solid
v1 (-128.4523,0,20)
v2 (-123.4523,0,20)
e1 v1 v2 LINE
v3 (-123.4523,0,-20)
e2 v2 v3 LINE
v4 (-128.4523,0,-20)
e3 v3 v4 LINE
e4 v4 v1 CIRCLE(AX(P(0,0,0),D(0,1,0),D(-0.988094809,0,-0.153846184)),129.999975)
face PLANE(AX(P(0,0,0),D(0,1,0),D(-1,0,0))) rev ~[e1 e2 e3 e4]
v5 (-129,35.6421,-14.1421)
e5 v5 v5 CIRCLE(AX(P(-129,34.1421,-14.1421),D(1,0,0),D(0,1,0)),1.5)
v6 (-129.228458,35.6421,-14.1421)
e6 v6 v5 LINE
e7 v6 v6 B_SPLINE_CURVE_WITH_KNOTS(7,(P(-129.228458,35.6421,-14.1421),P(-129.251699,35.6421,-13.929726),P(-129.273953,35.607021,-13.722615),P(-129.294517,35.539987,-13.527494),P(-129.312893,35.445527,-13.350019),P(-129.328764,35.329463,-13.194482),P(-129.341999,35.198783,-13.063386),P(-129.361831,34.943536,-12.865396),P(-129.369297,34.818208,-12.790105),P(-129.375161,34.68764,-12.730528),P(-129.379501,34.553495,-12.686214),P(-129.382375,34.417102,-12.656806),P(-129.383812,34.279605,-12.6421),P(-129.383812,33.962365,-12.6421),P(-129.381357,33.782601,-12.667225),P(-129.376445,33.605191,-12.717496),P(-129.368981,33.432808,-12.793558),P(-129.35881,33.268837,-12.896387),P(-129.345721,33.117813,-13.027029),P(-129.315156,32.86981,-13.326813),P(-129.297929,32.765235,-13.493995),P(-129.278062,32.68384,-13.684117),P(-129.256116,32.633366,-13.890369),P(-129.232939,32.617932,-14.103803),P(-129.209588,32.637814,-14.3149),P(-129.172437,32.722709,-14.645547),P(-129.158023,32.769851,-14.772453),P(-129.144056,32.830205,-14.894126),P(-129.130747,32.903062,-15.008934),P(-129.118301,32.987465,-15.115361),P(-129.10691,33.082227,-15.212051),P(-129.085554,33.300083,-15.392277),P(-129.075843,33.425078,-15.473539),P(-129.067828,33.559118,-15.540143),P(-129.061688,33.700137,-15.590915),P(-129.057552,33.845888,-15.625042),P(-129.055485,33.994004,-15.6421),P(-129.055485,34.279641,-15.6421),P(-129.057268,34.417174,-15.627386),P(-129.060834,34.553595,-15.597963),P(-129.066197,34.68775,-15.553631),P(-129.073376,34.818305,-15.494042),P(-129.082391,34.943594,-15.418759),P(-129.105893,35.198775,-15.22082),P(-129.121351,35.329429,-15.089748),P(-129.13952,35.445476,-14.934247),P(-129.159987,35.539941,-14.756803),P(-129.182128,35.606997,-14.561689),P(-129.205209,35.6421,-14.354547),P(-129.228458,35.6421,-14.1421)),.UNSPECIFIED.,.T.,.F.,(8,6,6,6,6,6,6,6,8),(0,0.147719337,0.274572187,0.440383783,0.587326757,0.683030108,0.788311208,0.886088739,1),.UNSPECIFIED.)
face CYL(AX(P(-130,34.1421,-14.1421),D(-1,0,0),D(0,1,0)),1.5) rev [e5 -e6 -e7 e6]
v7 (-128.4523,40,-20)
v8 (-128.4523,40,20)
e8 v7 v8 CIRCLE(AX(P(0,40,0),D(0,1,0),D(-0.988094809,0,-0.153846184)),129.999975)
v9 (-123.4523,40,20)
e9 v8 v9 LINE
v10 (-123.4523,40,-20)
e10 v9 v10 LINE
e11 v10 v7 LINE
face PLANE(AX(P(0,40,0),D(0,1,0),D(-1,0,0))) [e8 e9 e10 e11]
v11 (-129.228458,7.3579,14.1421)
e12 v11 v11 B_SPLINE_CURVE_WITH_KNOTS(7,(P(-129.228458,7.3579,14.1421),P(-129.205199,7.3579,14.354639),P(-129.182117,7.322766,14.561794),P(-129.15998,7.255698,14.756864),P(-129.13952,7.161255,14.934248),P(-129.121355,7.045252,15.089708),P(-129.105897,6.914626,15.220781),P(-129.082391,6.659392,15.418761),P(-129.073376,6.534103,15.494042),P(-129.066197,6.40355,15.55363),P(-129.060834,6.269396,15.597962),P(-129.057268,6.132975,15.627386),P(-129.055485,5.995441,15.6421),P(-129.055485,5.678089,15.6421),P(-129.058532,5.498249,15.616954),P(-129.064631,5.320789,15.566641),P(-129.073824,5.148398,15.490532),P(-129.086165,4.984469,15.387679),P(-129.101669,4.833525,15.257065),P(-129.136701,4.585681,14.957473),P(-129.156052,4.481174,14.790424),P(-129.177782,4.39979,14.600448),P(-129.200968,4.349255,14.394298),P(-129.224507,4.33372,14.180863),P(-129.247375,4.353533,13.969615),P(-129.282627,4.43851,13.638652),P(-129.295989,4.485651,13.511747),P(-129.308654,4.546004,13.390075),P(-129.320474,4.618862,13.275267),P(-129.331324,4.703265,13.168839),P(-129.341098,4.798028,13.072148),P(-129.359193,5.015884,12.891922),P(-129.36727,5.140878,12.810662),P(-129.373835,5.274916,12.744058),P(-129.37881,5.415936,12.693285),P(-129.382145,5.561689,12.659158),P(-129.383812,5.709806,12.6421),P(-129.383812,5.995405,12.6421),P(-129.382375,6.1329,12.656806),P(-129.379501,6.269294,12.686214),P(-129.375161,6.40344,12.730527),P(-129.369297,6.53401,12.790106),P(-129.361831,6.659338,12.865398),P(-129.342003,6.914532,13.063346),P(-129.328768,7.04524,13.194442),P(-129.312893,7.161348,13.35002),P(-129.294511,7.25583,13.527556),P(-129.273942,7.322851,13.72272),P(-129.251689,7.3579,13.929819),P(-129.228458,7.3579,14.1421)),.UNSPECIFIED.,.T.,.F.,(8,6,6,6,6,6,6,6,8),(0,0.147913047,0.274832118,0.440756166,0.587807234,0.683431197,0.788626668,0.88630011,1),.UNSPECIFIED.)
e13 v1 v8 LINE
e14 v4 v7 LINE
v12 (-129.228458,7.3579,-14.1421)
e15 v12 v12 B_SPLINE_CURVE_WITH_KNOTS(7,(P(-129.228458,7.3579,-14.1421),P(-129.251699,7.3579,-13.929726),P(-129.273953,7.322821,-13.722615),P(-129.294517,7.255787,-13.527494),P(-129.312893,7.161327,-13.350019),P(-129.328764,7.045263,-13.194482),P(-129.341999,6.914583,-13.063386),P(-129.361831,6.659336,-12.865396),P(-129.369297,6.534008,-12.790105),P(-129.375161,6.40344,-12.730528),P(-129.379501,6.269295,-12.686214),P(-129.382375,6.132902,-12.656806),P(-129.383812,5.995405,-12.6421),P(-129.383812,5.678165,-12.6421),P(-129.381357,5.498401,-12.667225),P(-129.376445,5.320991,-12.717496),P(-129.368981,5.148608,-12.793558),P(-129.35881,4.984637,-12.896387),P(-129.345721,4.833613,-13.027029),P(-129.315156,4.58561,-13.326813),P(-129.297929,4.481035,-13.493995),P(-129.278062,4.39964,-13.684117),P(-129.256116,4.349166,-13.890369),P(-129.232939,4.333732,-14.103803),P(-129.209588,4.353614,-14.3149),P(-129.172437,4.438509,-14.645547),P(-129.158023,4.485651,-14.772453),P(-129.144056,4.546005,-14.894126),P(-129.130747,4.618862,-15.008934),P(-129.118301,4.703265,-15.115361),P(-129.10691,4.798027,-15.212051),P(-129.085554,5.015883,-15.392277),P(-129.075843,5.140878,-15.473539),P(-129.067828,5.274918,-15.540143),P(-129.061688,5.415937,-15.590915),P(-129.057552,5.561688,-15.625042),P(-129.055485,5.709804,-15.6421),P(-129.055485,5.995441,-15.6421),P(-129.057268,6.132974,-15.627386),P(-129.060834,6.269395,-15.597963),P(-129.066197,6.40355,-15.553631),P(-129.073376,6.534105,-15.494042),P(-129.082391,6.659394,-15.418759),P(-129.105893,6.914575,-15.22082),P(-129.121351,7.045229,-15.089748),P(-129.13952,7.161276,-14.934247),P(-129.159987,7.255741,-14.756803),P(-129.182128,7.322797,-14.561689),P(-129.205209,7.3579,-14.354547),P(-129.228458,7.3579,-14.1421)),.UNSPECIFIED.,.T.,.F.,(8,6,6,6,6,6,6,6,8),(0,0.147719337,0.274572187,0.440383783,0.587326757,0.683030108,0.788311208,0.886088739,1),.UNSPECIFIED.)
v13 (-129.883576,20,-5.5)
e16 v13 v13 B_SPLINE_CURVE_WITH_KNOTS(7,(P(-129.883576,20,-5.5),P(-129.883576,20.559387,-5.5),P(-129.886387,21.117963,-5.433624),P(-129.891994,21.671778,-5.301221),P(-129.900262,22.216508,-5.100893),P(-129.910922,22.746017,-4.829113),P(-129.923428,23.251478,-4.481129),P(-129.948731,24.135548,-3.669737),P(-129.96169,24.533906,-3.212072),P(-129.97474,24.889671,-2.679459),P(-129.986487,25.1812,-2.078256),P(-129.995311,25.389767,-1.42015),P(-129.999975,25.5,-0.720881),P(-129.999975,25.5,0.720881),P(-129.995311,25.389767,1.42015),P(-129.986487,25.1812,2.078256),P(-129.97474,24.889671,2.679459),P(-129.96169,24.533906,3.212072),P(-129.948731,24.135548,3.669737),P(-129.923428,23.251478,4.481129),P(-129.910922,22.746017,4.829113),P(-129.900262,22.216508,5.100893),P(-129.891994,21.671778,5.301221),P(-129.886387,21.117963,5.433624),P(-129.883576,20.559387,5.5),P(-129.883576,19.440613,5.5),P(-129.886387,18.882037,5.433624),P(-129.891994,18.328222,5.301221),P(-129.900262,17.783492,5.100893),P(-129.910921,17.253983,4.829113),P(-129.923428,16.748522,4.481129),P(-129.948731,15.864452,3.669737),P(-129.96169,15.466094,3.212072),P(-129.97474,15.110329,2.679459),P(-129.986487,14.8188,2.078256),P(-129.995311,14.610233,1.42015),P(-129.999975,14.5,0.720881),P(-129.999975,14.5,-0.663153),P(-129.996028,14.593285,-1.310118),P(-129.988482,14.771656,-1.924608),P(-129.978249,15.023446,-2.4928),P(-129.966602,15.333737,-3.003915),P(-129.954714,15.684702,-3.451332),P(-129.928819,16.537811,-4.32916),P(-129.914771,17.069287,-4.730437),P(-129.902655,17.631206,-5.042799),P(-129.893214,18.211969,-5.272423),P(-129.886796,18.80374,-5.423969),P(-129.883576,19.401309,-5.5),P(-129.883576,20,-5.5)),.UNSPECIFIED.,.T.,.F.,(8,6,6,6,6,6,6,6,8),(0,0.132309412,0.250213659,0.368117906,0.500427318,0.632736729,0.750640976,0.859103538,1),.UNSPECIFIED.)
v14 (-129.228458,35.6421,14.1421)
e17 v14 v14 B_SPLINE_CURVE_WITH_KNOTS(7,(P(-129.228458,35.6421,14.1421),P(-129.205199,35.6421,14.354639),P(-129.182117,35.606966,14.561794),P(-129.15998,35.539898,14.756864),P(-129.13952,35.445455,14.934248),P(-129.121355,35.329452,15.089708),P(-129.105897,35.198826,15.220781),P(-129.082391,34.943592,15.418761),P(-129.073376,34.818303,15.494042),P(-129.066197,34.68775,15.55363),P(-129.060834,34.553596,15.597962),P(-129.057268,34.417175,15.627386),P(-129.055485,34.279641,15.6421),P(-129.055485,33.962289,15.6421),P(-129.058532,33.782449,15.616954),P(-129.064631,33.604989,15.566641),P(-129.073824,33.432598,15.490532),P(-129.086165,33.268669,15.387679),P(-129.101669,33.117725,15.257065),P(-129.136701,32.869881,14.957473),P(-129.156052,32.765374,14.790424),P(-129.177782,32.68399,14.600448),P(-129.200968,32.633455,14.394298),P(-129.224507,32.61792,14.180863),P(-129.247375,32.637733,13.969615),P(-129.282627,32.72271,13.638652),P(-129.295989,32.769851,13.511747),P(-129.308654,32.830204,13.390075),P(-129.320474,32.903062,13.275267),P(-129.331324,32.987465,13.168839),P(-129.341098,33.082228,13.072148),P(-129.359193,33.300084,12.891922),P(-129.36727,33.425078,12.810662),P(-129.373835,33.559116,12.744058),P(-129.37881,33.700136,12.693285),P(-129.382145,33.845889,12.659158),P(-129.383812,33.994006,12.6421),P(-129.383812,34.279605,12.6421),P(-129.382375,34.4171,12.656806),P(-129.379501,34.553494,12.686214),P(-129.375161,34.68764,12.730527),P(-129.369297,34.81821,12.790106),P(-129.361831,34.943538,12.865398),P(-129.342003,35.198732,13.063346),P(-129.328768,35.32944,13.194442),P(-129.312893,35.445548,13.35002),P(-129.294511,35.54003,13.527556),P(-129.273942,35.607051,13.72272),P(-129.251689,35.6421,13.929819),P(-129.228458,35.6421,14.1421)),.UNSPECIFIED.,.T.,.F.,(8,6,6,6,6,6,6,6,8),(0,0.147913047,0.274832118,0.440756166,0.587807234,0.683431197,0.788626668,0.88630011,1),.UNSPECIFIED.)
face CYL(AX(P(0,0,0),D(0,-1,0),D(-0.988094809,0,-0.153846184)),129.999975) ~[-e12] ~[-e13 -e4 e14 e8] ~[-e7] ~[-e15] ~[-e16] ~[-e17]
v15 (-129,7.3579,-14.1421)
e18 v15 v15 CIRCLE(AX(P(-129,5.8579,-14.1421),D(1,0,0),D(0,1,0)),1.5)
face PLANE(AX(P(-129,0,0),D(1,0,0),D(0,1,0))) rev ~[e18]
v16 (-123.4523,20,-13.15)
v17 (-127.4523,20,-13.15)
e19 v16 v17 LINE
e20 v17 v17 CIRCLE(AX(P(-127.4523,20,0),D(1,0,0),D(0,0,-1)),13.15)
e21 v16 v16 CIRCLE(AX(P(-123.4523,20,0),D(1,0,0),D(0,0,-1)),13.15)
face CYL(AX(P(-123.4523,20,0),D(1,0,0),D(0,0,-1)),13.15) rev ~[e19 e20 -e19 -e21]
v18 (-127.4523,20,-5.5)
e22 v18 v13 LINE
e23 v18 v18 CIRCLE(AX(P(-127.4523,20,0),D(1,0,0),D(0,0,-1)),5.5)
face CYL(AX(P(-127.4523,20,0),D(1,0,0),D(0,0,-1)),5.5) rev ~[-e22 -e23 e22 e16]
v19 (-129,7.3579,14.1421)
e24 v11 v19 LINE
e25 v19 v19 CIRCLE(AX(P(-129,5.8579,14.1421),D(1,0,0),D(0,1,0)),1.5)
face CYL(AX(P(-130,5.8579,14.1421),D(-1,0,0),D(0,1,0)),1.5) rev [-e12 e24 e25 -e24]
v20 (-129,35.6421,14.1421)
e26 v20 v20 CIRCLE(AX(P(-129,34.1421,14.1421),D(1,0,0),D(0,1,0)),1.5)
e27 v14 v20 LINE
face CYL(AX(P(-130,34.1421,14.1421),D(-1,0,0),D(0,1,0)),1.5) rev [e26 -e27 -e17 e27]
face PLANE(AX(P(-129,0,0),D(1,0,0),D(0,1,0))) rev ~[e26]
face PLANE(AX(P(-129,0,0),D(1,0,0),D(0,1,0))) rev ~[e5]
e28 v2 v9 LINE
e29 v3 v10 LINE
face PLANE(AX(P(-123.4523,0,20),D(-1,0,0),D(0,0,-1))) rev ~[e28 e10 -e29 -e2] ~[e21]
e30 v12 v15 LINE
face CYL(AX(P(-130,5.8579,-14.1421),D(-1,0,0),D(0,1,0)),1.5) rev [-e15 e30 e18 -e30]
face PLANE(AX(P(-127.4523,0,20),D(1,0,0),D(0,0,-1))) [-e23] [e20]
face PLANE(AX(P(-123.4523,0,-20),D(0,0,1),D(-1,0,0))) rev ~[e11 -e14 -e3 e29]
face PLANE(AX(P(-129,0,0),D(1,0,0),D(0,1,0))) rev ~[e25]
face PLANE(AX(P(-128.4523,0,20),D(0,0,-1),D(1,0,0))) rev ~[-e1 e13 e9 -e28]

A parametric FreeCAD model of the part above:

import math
import FreeCAD as App
import Part
import Sketcher

doc = App.newDocument("Part")
body = doc.addObject("PartDesign::Body", "Body")

# Sketch on XZ plane
sketch1 = body.newObject("Sketcher::SketchObject", "Sketch")
sketch1.AttachmentSupport = (doc.getObject("XZ_Plane"), [""])
sketch1.MapMode = "FlatFace"
sketch1.addGeometry([
    Part.LineSegment(App.Vector(-123, -20, 0), App.Vector(-128, -20, 0)),
    Part.ArcOfCircle(Part.Circle(App.Vector(0, 0, 0), App.Vector(0, 0, 1), 130), math.radians(171.15), math.radians(188.85)),
    Part.LineSegment(App.Vector(-128, 20, 0), App.Vector(-123, 20, 0)),
    Part.LineSegment(App.Vector(-123, 20, 0), App.Vector(-123, -20, 0)),
], False)
sketch1.addConstraint([
    Sketcher.Constraint("Coincident", 0, 2, 1, 2),
    Sketcher.Constraint("Coincident", 1, 1, 2, 1),
    Sketcher.Constraint("Coincident", 2, 2, 3, 1),
    Sketcher.Constraint("Coincident", 3, 2, 0, 1),
    Sketcher.Constraint("Horizontal", 0),
    Sketcher.Constraint("Horizontal", 2),
    Sketcher.Constraint("Vertical", 3),
    Sketcher.Constraint("Coincident", 1, 3, -1, 1),
    Sketcher.Constraint("Vertical", 0, 2, 1, 1),
    Sketcher.Constraint("Radius", 1, 130.0),
    Sketcher.Constraint("DistanceX", 0, 2, 0, 1, 5.0),
    Sketcher.Constraint("DistanceY", 3, 2, 3, 1, 40.0),
])
pad1 = body.newObject("PartDesign::Pad", "Pad")
pad1.Profile = sketch1
pad1.Length = 40
pad1.Reversed = True

# Sketch on YZ plane
sketch2 = body.newObject("Sketcher::SketchObject", "Sketch001")
sketch2.AttachmentSupport = (doc.getObject("YZ_Plane"), [""])
sketch2.MapMode = "FlatFace"
sketch2.AttachmentOffset = App.Placement(App.Vector(0, 0, -123.4523), App.Rotation())
sketch2.addGeometry(Part.Circle(App.Vector(20, 0, 0), App.Vector(0, 0, 1), 13), False)
sketch2.addConstraint([
    Sketcher.Constraint("PointOnObject", 0, 3, -1),
    Sketcher.Constraint("Diameter", 0, 26.3),
    Sketcher.Constraint("DistanceX", -1, 1, 0, 3, 20.0),
])
pocket1 = body.newObject("PartDesign::Pocket", "Pocket")
pocket1.Profile = sketch2
pocket1.Length = 4

# Sketch on YZ plane
sketch3 = body.newObject("Sketcher::SketchObject", "Sketch002")
sketch3.AttachmentSupport = (doc.getObject("YZ_Plane"), [""])
sketch3.MapMode = "FlatFace"
sketch3.AttachmentOffset = App.Placement(App.Vector(0, 0, -127.4523), App.Rotation())
sketch3.addGeometry(Part.Circle(App.Vector(20, 0, 0), App.Vector(0, 0, 1), 6), False)
sketch3.addConstraint([
    Sketcher.Constraint("PointOnObject", 0, 3, -1),
    Sketcher.Constraint("Diameter", 0, 11.0),
    Sketcher.Constraint("DistanceX", -1, 1, 0, 3, 20.0),
])
pocket2 = body.newObject("PartDesign::Pocket", "Pocket001")
pocket2.Profile = sketch3
pocket2.Type = "ThroughAll"

# Sketch on YZ plane
sketch4 = body.newObject("Sketcher::SketchObject", "Sketch003")
sketch4.AttachmentSupport = (doc.getObject("YZ_Plane"), [""])
sketch4.MapMode = "FlatFace"
sketch4.AttachmentOffset = App.Placement(App.Vector(0, 0, -130), App.Rotation())
sketch4.addGeometry([
    Part.Circle(App.Vector(34.1, -14.1, 0), App.Vector(0, 0, 1), 1.5),
    Part.Circle(App.Vector(34.1, 14.1, 0), App.Vector(0, 0, 1), 1.5),
    Part.Circle(App.Vector(5.9, 14.1, 0), App.Vector(0, 0, 1), 1.5),
    Part.Circle(App.Vector(5.9, -14.1, 0), App.Vector(0, 0, 1), 1.5),
], False)
sketch4.addConstraint([
    Sketcher.Constraint("Equal", 0, 1),
    Sketcher.Constraint("Equal", 1, 2),
    Sketcher.Constraint("Equal", 2, 3),
    Sketcher.Constraint("Symmetric", 0, 3, 1, 3, -1),
    Sketcher.Constraint("Symmetric", 2, 3, 3, 3, -1),
    Sketcher.Constraint("Horizontal", 1, 3, 2, 3),
    Sketcher.Constraint("Diameter", 0, 3.0),
    Sketcher.Constraint("DistanceX", -1, 1, 0, 3, 34.142),
    Sketcher.Constraint("DistanceY", 0, 3, -1, 1, 14.142),
    Sketcher.Constraint("DistanceX", -1, 1, 2, 3, 5.858),
])
pocket3 = body.newObject("PartDesign::Pocket", "Pocket002")
pocket3.Profile = sketch4
pocket3.Length = 1
pocket3.Reversed = True

doc.recompute()
